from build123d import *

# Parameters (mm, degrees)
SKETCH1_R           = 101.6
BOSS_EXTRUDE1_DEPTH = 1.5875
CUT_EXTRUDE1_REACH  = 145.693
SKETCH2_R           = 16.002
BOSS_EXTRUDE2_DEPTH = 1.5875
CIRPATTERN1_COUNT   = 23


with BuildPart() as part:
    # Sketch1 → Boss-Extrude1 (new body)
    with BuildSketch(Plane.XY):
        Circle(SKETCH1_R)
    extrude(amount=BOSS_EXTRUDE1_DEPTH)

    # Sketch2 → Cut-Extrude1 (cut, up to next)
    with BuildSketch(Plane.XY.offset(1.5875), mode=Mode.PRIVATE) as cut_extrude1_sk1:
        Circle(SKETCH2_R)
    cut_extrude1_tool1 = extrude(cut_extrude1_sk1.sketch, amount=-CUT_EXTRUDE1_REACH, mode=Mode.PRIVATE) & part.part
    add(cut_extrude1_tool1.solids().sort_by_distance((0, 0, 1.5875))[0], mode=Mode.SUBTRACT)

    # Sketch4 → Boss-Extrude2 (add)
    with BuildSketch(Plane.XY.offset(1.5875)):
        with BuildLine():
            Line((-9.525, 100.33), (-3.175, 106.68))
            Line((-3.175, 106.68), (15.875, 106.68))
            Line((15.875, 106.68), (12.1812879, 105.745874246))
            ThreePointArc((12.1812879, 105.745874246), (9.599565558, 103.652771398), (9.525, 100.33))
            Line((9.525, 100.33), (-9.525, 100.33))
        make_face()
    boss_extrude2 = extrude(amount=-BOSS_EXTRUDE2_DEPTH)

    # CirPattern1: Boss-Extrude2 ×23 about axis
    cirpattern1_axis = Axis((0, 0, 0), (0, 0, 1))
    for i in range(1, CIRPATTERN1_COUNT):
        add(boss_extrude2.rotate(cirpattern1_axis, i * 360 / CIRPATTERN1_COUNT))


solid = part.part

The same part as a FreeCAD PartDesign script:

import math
import FreeCAD as App
import Part
import Sketcher
from FreeCAD import Vector
Q = App.Units.Quantity

doc = App.newDocument("Part")
body = doc.addObject("PartDesign::Body", "Body")

# Sketch on XY plane
sketch1 = body.newObject("Sketcher::SketchObject", "Sketch")
sketch1.AttachmentSupport = (doc.getObject("XY_Plane"), [""])
sketch1.MapMode = "FlatFace"
sketch1.addGeometry(Part.Circle(Vector(0, 0, 0), Vector(0, 0, 1), 102), False)
sketch1.addConstraint(Sketcher.Constraint("Coincident", 0, 3, -1, 1))
sketch1.addConstraint(Sketcher.Constraint("Diameter", 0, Q("8 in")))
pad1 = body.newObject("PartDesign::Pad", "Pad")
pad1.Profile = sketch1
pad1.Length = Q("0.0625 in")

# Sketch on XY plane
sketch2 = body.newObject("Sketcher::SketchObject", "Sketch001")
sketch2.AttachmentSupport = (doc.getObject("XY_Plane"), [""])
sketch2.MapMode = "FlatFace"
sketch2.AttachmentOffset = App.Placement(Vector(0, 0, 0.0625 * 25.4), App.Rotation())
sketch2.addGeometry(Part.Circle(Vector(0, 0, 0), Vector(0, 0, 1), 16), False)
sketch2.addConstraint(Sketcher.Constraint("Coincident", 0, 3, -1, 1))
sketch2.addConstraint(Sketcher.Constraint("Diameter", 0, Q("1.26 in")))
pocket1 = body.newObject("PartDesign::Pocket", "Pocket")
pocket1.Profile = sketch2
pocket1.Type = "UpToFirst"

# Sketch on XY plane
sketch3 = body.newObject("Sketcher::SketchObject", "Sketch002")
sketch3.AttachmentSupport = (doc.getObject("XY_Plane"), [""])
sketch3.MapMode = "FlatFace"
sketch3.AttachmentOffset = App.Placement(Vector(0, 0, 0.0625 * 25.4), App.Rotation())
sketch3.addGeometry(Part.LineSegment(Vector(-3.2, 106.7, 0), Vector(-9.5, 100.3, 0)), False)
sketch3.addGeometry(Part.LineSegment(Vector(-9.5, 100.3, 0), Vector(9.5, 100.3, 0)), False)
sketch3.addGeometry(Part.ArcOfCircle(Part.Circle(Vector(13.2, 101.9, 0), Vector(0, 0, 1), 4), math.radians(104), math.radians(204)), False)
sketch3.addGeometry(Part.LineSegment(Vector(12.2, 105.7, 0), Vector(15.9, 106.7, 0)), False)
sketch3.addGeometry(Part.LineSegment(Vector(15.9, 106.7, 0), Vector(-3.2, 106.7, 0)), False)
sketch3.addConstraint(Sketcher.Constraint("Coincident", 0, 2, 1, 1))
sketch3.addConstraint(Sketcher.Constraint("Coincident", 1, 2, 2, 2))
sketch3.addConstraint(Sketcher.Constraint("Tangent", 2, 1, 3, 1))
sketch3.addConstraint(Sketcher.Constraint("Coincident", 3, 2, 4, 1))
sketch3.addConstraint(Sketcher.Constraint("Coincident", 4, 2, 0, 1))
sketch3.addConstraint(Sketcher.Constraint("Horizontal", 1))
sketch3.addConstraint(Sketcher.Constraint("Horizontal", 4))
sketch3.addConstraint(Sketcher.Constraint("Equal", 1, 4))
sketch3.addConstraint(Sketcher.Constraint("Angle", 0, Q("-135 deg")))
sketch3.addConstraint(Sketcher.Constraint("DistanceX", 0, 2, 3, 2, Q("1 in")))
sketch3.addConstraint(Sketcher.Constraint("DistanceX", 1, 1, 1, 2, Q("0.75 in")))
sketch3.addConstraint(Sketcher.Constraint("DistanceY", -1, 1, 3, 2, Q("4.2 in")))
sketch3.addConstraint(Sketcher.Constraint("Distance", 3, Q("0.15 in")))
sketch3.addConstraint(Sketcher.Constraint("DistanceX", 0, 2, -1, 1, Q("0.375 in")))
sketch3.addConstraint(Sketcher.Constraint("Radius", 2, Q("3.955762 mm")))
pad2 = body.newObject("PartDesign::Pad", "Pad001")
pad2.Profile = sketch3
pad2.Length = Q("0.0625 in")
pad2.Reversed = True
doc.recompute()

polarpattern = body.newObject("PartDesign::PolarPattern", "PolarPattern")
polarpattern.Originals = [pad2]
polarpattern.Axis = (doc.getObject("Z_Axis"), [""])
polarpattern.Angle = 360
polarpattern.Occurrences = 23
body.Tip = polarpattern

doc.recompute()
